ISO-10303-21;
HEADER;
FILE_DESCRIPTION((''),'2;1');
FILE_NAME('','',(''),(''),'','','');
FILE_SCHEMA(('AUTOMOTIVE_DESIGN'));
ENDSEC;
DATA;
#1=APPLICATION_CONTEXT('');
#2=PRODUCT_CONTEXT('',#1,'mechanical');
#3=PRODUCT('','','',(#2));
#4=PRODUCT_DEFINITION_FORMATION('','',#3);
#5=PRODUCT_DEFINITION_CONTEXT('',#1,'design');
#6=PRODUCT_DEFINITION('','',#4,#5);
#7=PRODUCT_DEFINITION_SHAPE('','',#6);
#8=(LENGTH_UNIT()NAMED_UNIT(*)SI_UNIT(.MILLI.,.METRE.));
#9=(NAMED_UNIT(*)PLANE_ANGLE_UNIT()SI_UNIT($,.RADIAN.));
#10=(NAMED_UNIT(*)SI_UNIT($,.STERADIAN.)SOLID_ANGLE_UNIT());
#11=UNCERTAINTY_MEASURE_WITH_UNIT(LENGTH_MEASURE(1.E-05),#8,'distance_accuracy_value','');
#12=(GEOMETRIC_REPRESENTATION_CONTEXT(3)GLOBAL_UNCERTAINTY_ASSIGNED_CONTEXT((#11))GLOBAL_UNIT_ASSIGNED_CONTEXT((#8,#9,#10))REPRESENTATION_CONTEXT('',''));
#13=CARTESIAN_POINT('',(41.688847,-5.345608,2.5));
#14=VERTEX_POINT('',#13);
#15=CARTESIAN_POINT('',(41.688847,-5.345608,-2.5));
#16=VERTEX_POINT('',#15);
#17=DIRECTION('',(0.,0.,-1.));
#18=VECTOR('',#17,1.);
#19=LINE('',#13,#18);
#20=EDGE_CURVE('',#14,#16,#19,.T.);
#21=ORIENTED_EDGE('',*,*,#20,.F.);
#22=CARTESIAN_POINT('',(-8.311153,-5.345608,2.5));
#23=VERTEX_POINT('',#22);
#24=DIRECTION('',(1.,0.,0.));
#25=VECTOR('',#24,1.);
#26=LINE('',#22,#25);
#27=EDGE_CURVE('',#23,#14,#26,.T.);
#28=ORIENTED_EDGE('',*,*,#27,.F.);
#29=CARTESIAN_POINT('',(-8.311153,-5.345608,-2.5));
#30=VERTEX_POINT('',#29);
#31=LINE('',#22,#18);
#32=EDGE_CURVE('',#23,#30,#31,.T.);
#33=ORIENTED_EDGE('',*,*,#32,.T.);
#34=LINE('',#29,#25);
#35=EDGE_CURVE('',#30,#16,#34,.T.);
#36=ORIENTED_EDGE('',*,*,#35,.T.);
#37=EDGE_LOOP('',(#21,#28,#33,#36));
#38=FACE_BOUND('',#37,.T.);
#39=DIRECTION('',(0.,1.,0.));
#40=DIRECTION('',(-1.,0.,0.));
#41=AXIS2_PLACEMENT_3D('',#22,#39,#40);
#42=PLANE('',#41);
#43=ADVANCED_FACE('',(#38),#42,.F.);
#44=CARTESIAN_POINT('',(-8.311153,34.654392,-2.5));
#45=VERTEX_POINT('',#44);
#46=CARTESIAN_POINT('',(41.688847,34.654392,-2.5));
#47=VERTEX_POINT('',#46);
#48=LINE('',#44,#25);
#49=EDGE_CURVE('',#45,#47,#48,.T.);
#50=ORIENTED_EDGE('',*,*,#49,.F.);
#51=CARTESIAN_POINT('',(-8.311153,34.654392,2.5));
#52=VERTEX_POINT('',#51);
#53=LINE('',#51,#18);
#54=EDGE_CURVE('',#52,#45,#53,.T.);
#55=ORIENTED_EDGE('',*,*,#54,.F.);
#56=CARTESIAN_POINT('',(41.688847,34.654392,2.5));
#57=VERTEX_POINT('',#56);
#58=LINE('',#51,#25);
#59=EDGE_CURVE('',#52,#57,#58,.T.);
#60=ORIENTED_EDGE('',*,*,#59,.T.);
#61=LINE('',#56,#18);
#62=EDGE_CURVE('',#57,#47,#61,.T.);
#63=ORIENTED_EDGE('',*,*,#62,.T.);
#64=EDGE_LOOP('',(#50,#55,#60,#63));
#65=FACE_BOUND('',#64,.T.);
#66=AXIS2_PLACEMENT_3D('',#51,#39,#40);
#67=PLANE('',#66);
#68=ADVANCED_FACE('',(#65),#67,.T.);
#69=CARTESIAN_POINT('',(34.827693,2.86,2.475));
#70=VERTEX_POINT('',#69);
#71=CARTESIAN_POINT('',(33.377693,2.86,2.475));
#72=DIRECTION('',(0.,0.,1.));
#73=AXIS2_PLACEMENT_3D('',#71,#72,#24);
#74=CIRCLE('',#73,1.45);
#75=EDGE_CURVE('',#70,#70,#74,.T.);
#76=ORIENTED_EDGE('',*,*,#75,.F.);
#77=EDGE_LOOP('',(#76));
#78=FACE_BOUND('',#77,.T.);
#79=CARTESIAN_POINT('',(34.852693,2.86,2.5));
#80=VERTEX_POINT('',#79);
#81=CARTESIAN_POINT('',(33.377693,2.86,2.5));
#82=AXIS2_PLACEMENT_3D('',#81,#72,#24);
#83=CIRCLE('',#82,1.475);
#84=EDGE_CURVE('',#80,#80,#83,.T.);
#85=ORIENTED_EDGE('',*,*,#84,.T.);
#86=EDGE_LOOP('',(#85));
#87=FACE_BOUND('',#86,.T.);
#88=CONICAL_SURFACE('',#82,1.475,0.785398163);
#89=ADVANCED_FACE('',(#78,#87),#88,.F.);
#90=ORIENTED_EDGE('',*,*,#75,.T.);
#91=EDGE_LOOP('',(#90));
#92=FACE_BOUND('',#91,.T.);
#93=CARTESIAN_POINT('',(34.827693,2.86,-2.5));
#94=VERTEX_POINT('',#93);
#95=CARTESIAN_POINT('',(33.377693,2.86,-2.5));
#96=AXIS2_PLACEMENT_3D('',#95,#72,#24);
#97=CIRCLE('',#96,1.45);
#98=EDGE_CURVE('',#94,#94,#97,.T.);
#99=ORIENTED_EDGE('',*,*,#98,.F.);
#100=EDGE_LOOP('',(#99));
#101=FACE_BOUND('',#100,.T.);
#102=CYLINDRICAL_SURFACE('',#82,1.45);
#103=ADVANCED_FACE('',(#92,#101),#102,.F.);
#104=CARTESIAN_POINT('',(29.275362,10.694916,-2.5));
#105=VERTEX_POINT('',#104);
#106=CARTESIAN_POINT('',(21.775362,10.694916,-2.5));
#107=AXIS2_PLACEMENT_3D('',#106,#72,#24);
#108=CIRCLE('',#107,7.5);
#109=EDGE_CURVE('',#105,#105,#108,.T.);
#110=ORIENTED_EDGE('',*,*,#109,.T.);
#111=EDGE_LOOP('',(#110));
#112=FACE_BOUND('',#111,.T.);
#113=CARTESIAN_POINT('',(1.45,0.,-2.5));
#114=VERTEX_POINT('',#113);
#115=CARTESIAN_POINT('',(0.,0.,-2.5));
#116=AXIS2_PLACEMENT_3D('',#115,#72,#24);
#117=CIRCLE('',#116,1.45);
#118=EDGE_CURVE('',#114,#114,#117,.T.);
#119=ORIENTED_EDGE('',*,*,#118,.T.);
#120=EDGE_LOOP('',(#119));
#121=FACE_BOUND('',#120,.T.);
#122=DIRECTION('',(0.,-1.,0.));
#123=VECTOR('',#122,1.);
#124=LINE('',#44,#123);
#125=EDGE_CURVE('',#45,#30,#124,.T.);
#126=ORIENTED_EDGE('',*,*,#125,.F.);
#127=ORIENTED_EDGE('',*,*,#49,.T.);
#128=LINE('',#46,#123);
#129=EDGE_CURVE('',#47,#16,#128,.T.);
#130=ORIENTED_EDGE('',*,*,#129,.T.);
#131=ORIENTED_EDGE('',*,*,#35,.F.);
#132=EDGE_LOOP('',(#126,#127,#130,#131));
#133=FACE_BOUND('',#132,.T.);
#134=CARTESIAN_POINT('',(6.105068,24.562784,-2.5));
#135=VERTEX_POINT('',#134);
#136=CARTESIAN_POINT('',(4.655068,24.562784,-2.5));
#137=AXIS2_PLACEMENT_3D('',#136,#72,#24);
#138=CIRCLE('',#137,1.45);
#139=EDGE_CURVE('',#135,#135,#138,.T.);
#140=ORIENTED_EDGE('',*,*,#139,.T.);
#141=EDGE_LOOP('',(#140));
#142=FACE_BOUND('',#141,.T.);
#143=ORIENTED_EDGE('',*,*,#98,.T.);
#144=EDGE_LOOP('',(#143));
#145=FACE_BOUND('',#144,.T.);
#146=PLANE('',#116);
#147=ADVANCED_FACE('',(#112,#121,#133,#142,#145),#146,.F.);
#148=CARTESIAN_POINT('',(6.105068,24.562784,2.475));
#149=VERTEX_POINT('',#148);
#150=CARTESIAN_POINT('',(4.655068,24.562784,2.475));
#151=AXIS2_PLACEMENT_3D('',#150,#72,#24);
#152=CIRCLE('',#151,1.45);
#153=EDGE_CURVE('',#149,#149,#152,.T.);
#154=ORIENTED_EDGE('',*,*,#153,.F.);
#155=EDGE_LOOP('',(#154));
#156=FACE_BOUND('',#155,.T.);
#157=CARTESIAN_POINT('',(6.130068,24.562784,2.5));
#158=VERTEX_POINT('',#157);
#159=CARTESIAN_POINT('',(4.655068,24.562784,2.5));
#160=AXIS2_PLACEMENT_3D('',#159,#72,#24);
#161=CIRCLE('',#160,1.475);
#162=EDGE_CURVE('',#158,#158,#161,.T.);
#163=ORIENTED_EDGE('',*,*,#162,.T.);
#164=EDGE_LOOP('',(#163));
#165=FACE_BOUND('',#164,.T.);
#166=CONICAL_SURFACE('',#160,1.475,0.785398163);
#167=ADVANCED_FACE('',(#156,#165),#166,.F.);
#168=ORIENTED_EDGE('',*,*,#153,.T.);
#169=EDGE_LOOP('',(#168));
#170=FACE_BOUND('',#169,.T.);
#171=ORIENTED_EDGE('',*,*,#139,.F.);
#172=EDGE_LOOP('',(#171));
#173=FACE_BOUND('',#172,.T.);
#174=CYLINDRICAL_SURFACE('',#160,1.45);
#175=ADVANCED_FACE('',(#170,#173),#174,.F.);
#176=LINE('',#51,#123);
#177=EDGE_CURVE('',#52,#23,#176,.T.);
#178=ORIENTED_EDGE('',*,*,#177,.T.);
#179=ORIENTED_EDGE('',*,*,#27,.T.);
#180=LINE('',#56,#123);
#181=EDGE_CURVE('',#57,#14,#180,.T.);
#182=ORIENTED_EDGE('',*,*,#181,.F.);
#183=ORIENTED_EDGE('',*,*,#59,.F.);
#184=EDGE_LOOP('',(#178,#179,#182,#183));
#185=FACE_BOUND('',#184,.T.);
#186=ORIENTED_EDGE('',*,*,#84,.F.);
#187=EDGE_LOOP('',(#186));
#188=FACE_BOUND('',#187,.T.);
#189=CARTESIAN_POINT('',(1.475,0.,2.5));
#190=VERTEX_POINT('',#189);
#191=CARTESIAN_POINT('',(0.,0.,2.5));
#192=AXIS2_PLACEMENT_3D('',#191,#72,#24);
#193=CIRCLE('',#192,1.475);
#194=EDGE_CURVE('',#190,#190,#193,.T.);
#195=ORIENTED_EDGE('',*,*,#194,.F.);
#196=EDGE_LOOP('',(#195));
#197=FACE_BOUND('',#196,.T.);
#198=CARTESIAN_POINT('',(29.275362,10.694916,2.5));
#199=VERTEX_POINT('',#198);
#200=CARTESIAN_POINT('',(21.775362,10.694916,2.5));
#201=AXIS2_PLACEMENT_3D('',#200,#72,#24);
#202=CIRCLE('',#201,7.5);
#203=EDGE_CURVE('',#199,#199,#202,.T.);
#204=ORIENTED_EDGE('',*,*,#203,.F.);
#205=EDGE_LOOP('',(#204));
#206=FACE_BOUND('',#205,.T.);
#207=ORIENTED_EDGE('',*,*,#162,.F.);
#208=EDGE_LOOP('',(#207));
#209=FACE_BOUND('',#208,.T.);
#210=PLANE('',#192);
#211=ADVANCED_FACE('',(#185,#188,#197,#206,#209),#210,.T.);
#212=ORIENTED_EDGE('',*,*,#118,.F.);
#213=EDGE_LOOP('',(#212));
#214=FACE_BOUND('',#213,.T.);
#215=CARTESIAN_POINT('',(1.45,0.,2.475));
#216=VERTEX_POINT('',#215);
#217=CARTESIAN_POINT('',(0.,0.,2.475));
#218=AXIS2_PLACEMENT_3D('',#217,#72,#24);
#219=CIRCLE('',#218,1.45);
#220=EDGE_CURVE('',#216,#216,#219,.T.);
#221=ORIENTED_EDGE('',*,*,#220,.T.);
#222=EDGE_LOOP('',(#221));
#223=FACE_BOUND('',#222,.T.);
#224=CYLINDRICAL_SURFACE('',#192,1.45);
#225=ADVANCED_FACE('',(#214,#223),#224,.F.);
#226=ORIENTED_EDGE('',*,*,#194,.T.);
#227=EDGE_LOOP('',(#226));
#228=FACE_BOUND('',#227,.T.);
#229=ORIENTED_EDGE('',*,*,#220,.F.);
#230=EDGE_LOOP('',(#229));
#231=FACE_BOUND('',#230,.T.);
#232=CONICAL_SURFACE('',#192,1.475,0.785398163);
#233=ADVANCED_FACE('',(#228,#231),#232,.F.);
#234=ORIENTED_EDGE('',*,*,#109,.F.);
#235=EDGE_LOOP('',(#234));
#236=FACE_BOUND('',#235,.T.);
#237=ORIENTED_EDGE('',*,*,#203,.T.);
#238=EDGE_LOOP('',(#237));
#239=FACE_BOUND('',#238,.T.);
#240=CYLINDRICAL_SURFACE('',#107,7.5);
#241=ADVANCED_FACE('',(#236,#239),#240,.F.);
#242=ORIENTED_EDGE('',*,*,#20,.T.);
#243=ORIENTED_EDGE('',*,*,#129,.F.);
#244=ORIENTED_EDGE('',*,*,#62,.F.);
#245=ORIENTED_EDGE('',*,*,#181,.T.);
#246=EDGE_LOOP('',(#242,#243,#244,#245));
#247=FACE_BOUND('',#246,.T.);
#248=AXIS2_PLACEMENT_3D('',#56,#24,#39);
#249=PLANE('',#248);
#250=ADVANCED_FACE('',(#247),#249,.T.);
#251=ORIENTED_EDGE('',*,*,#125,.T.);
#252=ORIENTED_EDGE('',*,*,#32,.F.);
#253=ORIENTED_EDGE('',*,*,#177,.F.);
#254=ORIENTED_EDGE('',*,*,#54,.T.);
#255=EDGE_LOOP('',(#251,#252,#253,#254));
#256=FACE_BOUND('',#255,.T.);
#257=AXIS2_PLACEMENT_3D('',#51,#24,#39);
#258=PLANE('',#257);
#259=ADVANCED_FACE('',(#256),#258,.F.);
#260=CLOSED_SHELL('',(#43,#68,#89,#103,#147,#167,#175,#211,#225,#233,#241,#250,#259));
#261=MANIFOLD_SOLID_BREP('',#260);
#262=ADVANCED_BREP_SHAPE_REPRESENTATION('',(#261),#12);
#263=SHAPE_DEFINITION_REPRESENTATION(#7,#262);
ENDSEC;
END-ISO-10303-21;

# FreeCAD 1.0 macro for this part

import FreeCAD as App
import Part
import Sketcher
from FreeCAD import Vector

doc = App.newDocument("Part")
params = doc.addObject("Spreadsheet::Sheet", "Params")
for row, (alias, value) in enumerate([
    ("sketch1_width", "50 mm"),
    ("sketch1_height", "40 mm"),
    ("pad1_length", "5 mm"),
    ("sketch2_diameter", "2.9 mm"),
    ("hole_diameter", "2.9 mm"),
    ("hole_csink_diameter", "2.95 mm"),
    ("sketch3_diameter", "15 mm"),
], start=1):
    params.set(f"A{row}", alias)
    params.set(f"B{row}", "=" + value)
    params.setAlias(f"B{row}", alias)

body = doc.addObject("PartDesign::Body", "Body")

# Sketch on XY plane
sketch1 = body.newObject("Sketcher::SketchObject", "Sketch")
sketch1.AttachmentSupport = (doc.getObject("XY_Plane"), [""])
sketch1.MapMode = "FlatFace"
sketch1.addGeometry(Part.LineSegment(Vector(-8, 35, 0), Vector(-8, -5, 0)), False)
sketch1.addGeometry(Part.LineSegment(Vector(-8, -5, 0), Vector(42, -5, 0)), False)
sketch1.addGeometry(Part.LineSegment(Vector(42, -5, 0), Vector(42, 35, 0)), False)
sketch1.addGeometry(Part.LineSegment(Vector(42, 35, 0), Vector(-8, 35, 0)), False)
sketch1.addConstraint(Sketcher.Constraint("Coincident", 0, 2, 1, 1))
sketch1.addConstraint(Sketcher.Constraint("Coincident", 1, 2, 2, 1))
sketch1.addConstraint(Sketcher.Constraint("Coincident", 2, 2, 3, 1))
sketch1.addConstraint(Sketcher.Constraint("Coincident", 3, 2, 0, 1))
sketch1.addConstraint(Sketcher.Constraint("Vertical", 0))
sketch1.addConstraint(Sketcher.Constraint("Horizontal", 1))
sketch1.addConstraint(Sketcher.Constraint("Vertical", 2))
sketch1.addConstraint(Sketcher.Constraint("Horizontal", 3))
sketch1.addConstraint(Sketcher.Constraint("DistanceX", 1, 1, 1, 2, 50.0))
sketch1.addConstraint(Sketcher.Constraint("DistanceY", 0, 2, 0, 1, 40.0))
sketch1.addConstraint(Sketcher.Constraint("DistanceY", 0, 2, -1, 1, 5.345608))
sketch1.addConstraint(Sketcher.Constraint("DistanceX", 0, 2, -1, 1, 8.311153))
sketch1.setExpression("Constraints[8]", "Params.sketch1_width")
sketch1.setExpression("Constraints[9]", "Params.sketch1_height")
pad1 = body.newObject("PartDesign::Pad", "Pad")
pad1.Profile = sketch1
pad1.setExpression("Length", "Params.pad1_length")
pad1.Midplane = True

# Sketch on XY plane
sketch2 = body.newObject("Sketcher::SketchObject", "Sketch001")
sketch2.AttachmentSupport = (doc.getObject("XY_Plane"), [""])
sketch2.MapMode = "FlatFace"
sketch2.AttachmentOffset = App.Placement(Vector(0, 0, 2.5), App.Rotation())
sketch2.addGeometry(Part.Circle(Vector(4.7, 24.6, 0), Vector(0, 0, 1), 1.4), False)
sketch2.addGeometry(Part.Circle(Vector(33.4, 2.9, 0), Vector(0, 0, 1), 1.4), False)
sketch2.addGeometry(Part.Circle(Vector(0, 0, 0), Vector(0, 0, 1), 1.4), False)
sketch2.addConstraint(Sketcher.Constraint("Coincident", 2, 3, -1, 1))
sketch2.addConstraint(Sketcher.Constraint("Equal", 0, 1))
sketch2.addConstraint(Sketcher.Constraint("Equal", 1, 2))
sketch2.addConstraint(Sketcher.Constraint("Diameter", 0, 2.9))
sketch2.addConstraint(Sketcher.Constraint("DistanceY", -1, 1, 1, 3, 2.86))
sketch2.addConstraint(Sketcher.Constraint("DistanceX", -1, 1, 0, 3, 4.655068))
sketch2.addConstraint(Sketcher.Constraint("DistanceY", -1, 1, 0, 3, 24.562784))
sketch2.addConstraint(Sketcher.Constraint("DistanceX", -1, 1, 1, 3, 33.377693))
sketch2.setExpression("Constraints[3]", "Params.sketch2_diameter")
doc.recompute()
hole = body.newObject("PartDesign::Hole", "Hole")
hole.Profile = sketch2
hole.ThreadType = "None"
hole.setExpression("Diameter", "Params.hole_diameter")
hole.DepthType = "ThroughAll"
hole.HoleCutType = "Countersink"
hole.setExpression("HoleCutDiameter", "Params.hole_csink_diameter")
hole.HoleCutCountersinkAngle = 90

# Sketch on XY plane
sketch3 = body.newObject("Sketcher::SketchObject", "Sketch002")
sketch3.AttachmentSupport = (doc.getObject("XY_Plane"), [""])
sketch3.MapMode = "FlatFace"
sketch3.AttachmentOffset = App.Placement(Vector(0, 0, 2.5), App.Rotation())
sketch3.addGeometry(Part.Circle(Vector(22, 11, 0), Vector(0, 0, 1), 8), False)
sketch3.addConstraint(Sketcher.Constraint("Diameter", 0, 15.0))
sketch3.addConstraint(Sketcher.Constraint("DistanceX", -1, 1, 0, 3, 21.775362))
sketch3.addConstraint(Sketcher.Constraint("DistanceY", -1, 1, 0, 3, 10.694916))
sketch3.setExpression("Constraints[0]", "Params.sketch3_diameter")
pocket1 = body.newObject("PartDesign::Pocket", "Pocket")
pocket1.Profile = sketch3
pocket1.Type = "ThroughAll"

doc.recompute()
